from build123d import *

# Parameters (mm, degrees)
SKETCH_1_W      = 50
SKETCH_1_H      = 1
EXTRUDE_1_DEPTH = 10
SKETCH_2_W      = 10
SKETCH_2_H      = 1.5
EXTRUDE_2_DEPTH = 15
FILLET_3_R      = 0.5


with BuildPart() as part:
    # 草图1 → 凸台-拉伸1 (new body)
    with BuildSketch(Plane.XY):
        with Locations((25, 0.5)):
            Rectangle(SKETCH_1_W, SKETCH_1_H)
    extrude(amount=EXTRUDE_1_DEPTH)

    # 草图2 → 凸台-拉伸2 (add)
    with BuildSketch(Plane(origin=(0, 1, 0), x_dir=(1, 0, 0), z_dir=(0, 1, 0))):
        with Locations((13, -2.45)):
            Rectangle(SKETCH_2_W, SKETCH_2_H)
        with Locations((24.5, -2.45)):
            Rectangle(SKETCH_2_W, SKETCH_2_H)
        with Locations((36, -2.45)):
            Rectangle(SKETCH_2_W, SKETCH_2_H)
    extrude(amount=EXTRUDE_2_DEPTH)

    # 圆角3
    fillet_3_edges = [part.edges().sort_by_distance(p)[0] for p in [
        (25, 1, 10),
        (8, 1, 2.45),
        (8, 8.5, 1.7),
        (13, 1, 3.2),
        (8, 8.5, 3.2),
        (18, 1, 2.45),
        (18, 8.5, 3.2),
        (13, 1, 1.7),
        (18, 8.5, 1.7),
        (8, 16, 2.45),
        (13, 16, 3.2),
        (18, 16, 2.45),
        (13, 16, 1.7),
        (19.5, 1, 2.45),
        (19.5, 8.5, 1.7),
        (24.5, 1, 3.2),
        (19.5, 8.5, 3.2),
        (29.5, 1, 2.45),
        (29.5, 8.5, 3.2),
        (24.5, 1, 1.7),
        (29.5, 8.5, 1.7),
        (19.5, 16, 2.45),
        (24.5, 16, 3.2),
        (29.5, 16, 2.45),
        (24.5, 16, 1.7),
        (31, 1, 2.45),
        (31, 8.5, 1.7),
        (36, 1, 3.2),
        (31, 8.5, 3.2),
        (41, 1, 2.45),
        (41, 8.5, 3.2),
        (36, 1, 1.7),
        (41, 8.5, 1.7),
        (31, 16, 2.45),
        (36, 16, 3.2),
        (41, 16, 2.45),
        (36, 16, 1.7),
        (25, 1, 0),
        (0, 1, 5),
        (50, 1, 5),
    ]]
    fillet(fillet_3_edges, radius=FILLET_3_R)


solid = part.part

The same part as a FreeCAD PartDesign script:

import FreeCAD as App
import Part
import Sketcher
from FreeCAD import Vector
Q = App.Units.Quantity


def edges_at(feature, points):
    """Names of the edges that pass closest to the given points."""
    edges = feature.Shape.Edges
    near = lambda p: min(range(len(edges)), key=lambda i: edges[i].distToShape(Part.Vertex(*p))[0])
    return sorted({f"Edge{near(p) + 1}" for p in points})

doc = App.newDocument("Part")
body = doc.addObject("PartDesign::Body", "Body")

# Sketch on XY plane
sketch1 = body.newObject("Sketcher::SketchObject", "Sketch")
sketch1.AttachmentSupport = (doc.getObject("XY_Plane"), [""])
sketch1.MapMode = "FlatFace"
sketch1.addGeometry([
    Part.LineSegment(Vector(0, 1, 0), Vector(0, 0, 0)),
    Part.LineSegment(Vector(0, 0, 0), Vector(50, 0, 0)),
    Part.LineSegment(Vector(50, 0, 0), Vector(50, 1, 0)),
    Part.LineSegment(Vector(50, 1, 0), Vector(0, 1, 0)),
], False)
sketch1.addConstraint([
    Sketcher.Constraint("Coincident", 0, 2, 1, 1),
    Sketcher.Constraint("Coincident", 1, 2, 2, 1),
    Sketcher.Constraint("Coincident", 2, 2, 3, 1),
    Sketcher.Constraint("Coincident", 3, 2, 0, 1),
    Sketcher.Constraint("Vertical", 0),
    Sketcher.Constraint("Horizontal", 1),
    Sketcher.Constraint("Vertical", 2),
    Sketcher.Constraint("Horizontal", 3),
    Sketcher.Constraint("Coincident", 0, 2, -1, 1),
    Sketcher.Constraint("DistanceX", 1, 1, 1, 2, Q("50 mm")),
    Sketcher.Constraint("DistanceY", 0, 2, 0, 1, Q("1 mm")),
])
pad1 = body.newObject("PartDesign::Pad", "Pad")
pad1.Profile = sketch1
pad1.Length = 10

# Sketch on XZ plane
sketch2 = body.newObject("Sketcher::SketchObject", "Sketch001")
sketch2.AttachmentSupport = (doc.getObject("XZ_Plane"), [""])
sketch2.MapMode = "FlatFace"
sketch2.AttachmentOffset = App.Placement(Vector(0, 0, -1), App.Rotation())
sketch2.addGeometry([
    Part.LineSegment(Vector(8, 1.7, 0), Vector(8, 3.2, 0)),  # 0
    Part.LineSegment(Vector(8, 3.2, 0), Vector(18, 3.2, 0)),  # 1
    Part.LineSegment(Vector(18, 3.2, 0), Vector(18, 1.7, 0)),  # 2
    Part.LineSegment(Vector(18, 1.7, 0), Vector(8, 1.7, 0)),  # 3
    Part.LineSegment(Vector(19.5, 1.7, 0), Vector(19.5, 3.2, 0)),  # 4
    Part.LineSegment(Vector(19.5, 3.2, 0), Vector(29.5, 3.2, 0)),  # 5
    Part.LineSegment(Vector(29.5, 3.2, 0), Vector(29.5, 1.7, 0)),  # 6
    Part.LineSegment(Vector(29.5, 1.7, 0), Vector(19.5, 1.7, 0)),  # 7
    Part.LineSegment(Vector(31, 1.7, 0), Vector(31, 3.2, 0)),  # 8
    Part.LineSegment(Vector(31, 3.2, 0), Vector(41, 3.2, 0)),  # 9
    Part.LineSegment(Vector(41, 3.2, 0), Vector(41, 1.7, 0)),  # 10
    Part.LineSegment(Vector(41, 1.7, 0), Vector(31, 1.7, 0)),  # 11
], False)
sketch2.addConstraint([
    Sketcher.Constraint("Coincident", 0, 2, 1, 1),
    Sketcher.Constraint("Coincident", 1, 2, 2, 1),
    Sketcher.Constraint("Coincident", 2, 2, 3, 1),
    Sketcher.Constraint("Coincident", 3, 2, 0, 1),
    Sketcher.Constraint("Coincident", 4, 2, 5, 1),
    Sketcher.Constraint("Coincident", 5, 2, 6, 1),
    Sketcher.Constraint("Coincident", 6, 2, 7, 1),
    Sketcher.Constraint("Coincident", 7, 2, 4, 1),
    Sketcher.Constraint("Coincident", 8, 2, 9, 1),
    Sketcher.Constraint("Coincident", 9, 2, 10, 1),
    Sketcher.Constraint("Coincident", 10, 2, 11, 1),
    Sketcher.Constraint("Coincident", 11, 2, 8, 1),
    Sketcher.Constraint("Vertical", 0),
    Sketcher.Constraint("Horizontal", 1),
    Sketcher.Constraint("Vertical", 2),
    Sketcher.Constraint("Horizontal", 3),
    Sketcher.Constraint("Vertical", 4),
    Sketcher.Constraint("Horizontal", 5),
    Sketcher.Constraint("Vertical", 6),
    Sketcher.Constraint("Horizontal", 7),
    Sketcher.Constraint("Vertical", 8),
    Sketcher.Constraint("Horizontal", 9),
    Sketcher.Constraint("Vertical", 10),
    Sketcher.Constraint("Horizontal", 11),
    Sketcher.Constraint("Horizontal", 1, 2, 4, 2),
    Sketcher.Constraint("Horizontal", 3, 2, 6, 2),
    Sketcher.Constraint("Horizontal", 5, 2, 8, 2),
    Sketcher.Constraint("Horizontal", 7, 2, 10, 2),
    Sketcher.Constraint("Equal", 3, 5),
    Sketcher.Constraint("Equal", 7, 9),
    Sketcher.Constraint("DistanceX", 1, 1, 1, 2, Q("10 mm")),
    Sketcher.Constraint("DistanceY", 0, 1, 0, 2, Q("1.5 mm")),
    Sketcher.Constraint("DistanceX", -1, 1, 0, 2, Q("8 mm")),
    Sketcher.Constraint("DistanceX", -1, 1, 8, 2, Q("31 mm")),
    Sketcher.Constraint("DistanceY", -1, 1, 0, 2, Q("3.2 mm")),
    Sketcher.Constraint("DistanceX", -1, 1, 4, 2, Q("19.5 mm")),
])
pad2 = body.newObject("PartDesign::Pad", "Pad001")
pad2.Profile = sketch2
pad2.Length = 15
pad2.Reversed = True
doc.recompute()

fillet = body.newObject("PartDesign::Fillet", "Fillet")
fillet.Base = (pad2, edges_at(pad2, [
    (25, 1, 10),
    (8, 1, 2.45),
    (8, 8.5, 1.7),
    (13, 1, 3.2),
    (8, 8.5, 3.2),
    (18, 1, 2.45),
    (18, 8.5, 3.2),
    (13, 1, 1.7),
    (18, 8.5, 1.7),
    (8, 16, 2.45),
    (13, 16, 3.2),
    (18, 16, 2.45),
    (13, 16, 1.7),
    (19.5, 1, 2.45),
    (19.5, 8.5, 1.7),
    (24.5, 1, 3.2),
    (19.5, 8.5, 3.2),
    (29.5, 1, 2.45),
    (29.5, 8.5, 3.2),
    (24.5, 1, 1.7),
    (29.5, 8.5, 1.7),
    (19.5, 16, 2.45),
    (24.5, 16, 3.2),
    (29.5, 16, 2.45),
    (24.5, 16, 1.7),
    (31, 1, 2.45),
    (31, 8.5, 1.7),
    (36, 1, 3.2),
    (31, 8.5, 3.2),
    (41, 1, 2.45),
    (41, 8.5, 3.2),
    (36, 1, 1.7),
    (41, 8.5, 1.7),
    (31, 16, 2.45),
    (36, 16, 3.2),
    (41, 16, 2.45),
    (36, 16, 1.7),
    (25, 1, 0),
    (0, 1, 5),
    (50, 1, 5),
]))
fillet.Radius = 0.5

doc.recompute()
